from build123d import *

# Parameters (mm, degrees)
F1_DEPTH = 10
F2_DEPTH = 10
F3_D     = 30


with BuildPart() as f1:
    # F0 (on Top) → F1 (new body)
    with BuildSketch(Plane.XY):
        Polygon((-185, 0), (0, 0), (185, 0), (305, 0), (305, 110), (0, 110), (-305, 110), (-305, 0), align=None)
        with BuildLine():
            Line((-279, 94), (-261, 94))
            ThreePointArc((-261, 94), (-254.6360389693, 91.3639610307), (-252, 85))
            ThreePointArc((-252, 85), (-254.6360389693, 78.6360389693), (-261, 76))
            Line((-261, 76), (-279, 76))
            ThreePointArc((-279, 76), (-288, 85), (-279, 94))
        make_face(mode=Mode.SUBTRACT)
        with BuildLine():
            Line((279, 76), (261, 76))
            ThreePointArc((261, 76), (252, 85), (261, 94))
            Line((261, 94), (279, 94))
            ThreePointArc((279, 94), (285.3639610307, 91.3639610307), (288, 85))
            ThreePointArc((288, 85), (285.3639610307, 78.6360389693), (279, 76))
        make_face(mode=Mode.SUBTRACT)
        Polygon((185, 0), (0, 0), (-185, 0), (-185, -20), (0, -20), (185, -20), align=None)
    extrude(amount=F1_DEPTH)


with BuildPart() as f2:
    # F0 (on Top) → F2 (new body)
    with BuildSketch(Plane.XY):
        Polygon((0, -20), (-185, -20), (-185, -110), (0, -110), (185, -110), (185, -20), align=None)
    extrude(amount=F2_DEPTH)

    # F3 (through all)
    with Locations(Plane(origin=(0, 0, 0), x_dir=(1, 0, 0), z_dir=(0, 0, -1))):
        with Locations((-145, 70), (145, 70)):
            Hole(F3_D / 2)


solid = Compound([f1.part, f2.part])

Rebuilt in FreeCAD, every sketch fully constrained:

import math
import FreeCAD as App
import Part
import Sketcher
Q = App.Units.Quantity


def add_polygon(sketch, points):
    """Adds a closed chain of lines whose ends are joined by coincident constraints."""
    first, n = sketch.GeometryCount, len(points)
    for a, b in zip(points, points[1:] + points[:1]):
        sketch.addGeometry(Part.LineSegment(App.Vector(*a, 0), App.Vector(*b, 0)), False)
    for i in range(n):
        sketch.addConstraint(Sketcher.Constraint("Coincident", first + i, 2, first + (i + 1) % n, 1))

doc = App.newDocument("Part")
params = doc.addObject("Spreadsheet::Sheet", "Params")
for row, (alias, value) in enumerate([
    ("sketch1_radius", "9 mm"),
    ("sketch1_width", "610 mm"),
    ("sketch1_width2", "120 mm"),
    ("sketch1_width3", "18 mm"),
    ("sketch1_height", "110 mm"),
    ("pad1_length", "10 mm"),
    ("sketch2_width", "370 mm"),
    ("sketch2_height", "90 mm"),
    ("pad2_length", "10 mm"),
    ("sketch3_diameter", "30 mm"),
    ("hole_diameter", "30 mm"),
], start=1):
    params.set(f"A{row}", alias)
    params.set(f"B{row}", "=" + value)
    params.setAlias(f"B{row}", alias)

body = doc.addObject("PartDesign::Body", "Body")

# Sketch on XY plane
sketch1 = doc.addObject("Sketcher::SketchObject", "Sketch")
body.addObject(sketch1)
sketch1.AttachmentSupport = (doc.XY_Plane, [""])
sketch1.MapMode = "FlatFace"
add_polygon(sketch1, [(305, 0), (305, 110), (-305, 110), (-305, 0), (-185, 0), (-185, -20), (185, -20), (185, 0)])  # lines 0-7
sketch1.addGeometry(Part.ArcOfCircle(Part.Circle(App.Vector(-279, 85, 0), App.Vector(0, 0, 1), 9), math.radians(90), math.radians(270)), False)  # 8
sketch1.addGeometry(Part.LineSegment(App.Vector(-279, 94, 0), App.Vector(-261, 94, 0)), False)  # 9
sketch1.addGeometry(Part.ArcOfCircle(Part.Circle(App.Vector(-261, 85, 0), App.Vector(0, 0, 1), 9), math.radians(0), math.radians(90)), False)  # 10
sketch1.addGeometry(Part.ArcOfCircle(Part.Circle(App.Vector(-261, 85, 0), App.Vector(0, 0, 1), 9), math.radians(-90), math.radians(0)), False)  # 11
sketch1.addGeometry(Part.LineSegment(App.Vector(-261, 76, 0), App.Vector(-279, 76, 0)), False)  # 12
sketch1.addGeometry(Part.ArcOfCircle(Part.Circle(App.Vector(279, 85, 0), App.Vector(0, 0, 1), 9), math.radians(-90), math.radians(0)), False)  # 13
sketch1.addGeometry(Part.LineSegment(App.Vector(279, 76, 0), App.Vector(261, 76, 0)), False)  # 14
sketch1.addGeometry(Part.ArcOfCircle(Part.Circle(App.Vector(261, 85, 0), App.Vector(0, 0, 1), 9), math.radians(90), math.radians(270)), False)  # 15
sketch1.addGeometry(Part.LineSegment(App.Vector(261, 94, 0), App.Vector(279, 94, 0)), False)  # 16
sketch1.addGeometry(Part.ArcOfCircle(Part.Circle(App.Vector(279, 85, 0), App.Vector(0, 0, 1), 9), math.radians(0), math.radians(90)), False)  # 17
sketch1.addConstraint([
    Sketcher.Constraint("Tangent", 8, 1, 9, 1),
    Sketcher.Constraint("Tangent", 9, 2, 10, 2),
    Sketcher.Constraint("Tangent", 10, 1, 11, 2),
    Sketcher.Constraint("Tangent", 11, 1, 12, 1),
    Sketcher.Constraint("Tangent", 12, 2, 8, 2),
    Sketcher.Constraint("Tangent", 13, 1, 14, 1),
    Sketcher.Constraint("Tangent", 14, 2, 15, 2),
    Sketcher.Constraint("Tangent", 15, 1, 16, 1),
    Sketcher.Constraint("Tangent", 16, 2, 17, 2),
    Sketcher.Constraint("Tangent", 17, 1, 13, 2),
    Sketcher.Constraint("Vertical", 0),
    Sketcher.Constraint("Horizontal", 1),
    Sketcher.Constraint("Vertical", 2),
    Sketcher.Constraint("Horizontal", 3),
    Sketcher.Constraint("Vertical", 4),
    Sketcher.Constraint("Horizontal", 5),
    Sketcher.Constraint("Vertical", 6),
    Sketcher.Constraint("Horizontal", 7),
    Sketcher.Constraint("Horizontal", 9),
    Sketcher.Constraint("Horizontal", 12),
    Sketcher.Constraint("Horizontal", 14),
    Sketcher.Constraint("Horizontal", 16),
    Sketcher.Constraint("Equal", 8, 10),
    Sketcher.Constraint("Equal", 11, 13),
    Sketcher.Constraint("Equal", 13, 15),
    Sketcher.Constraint("Symmetric", 3, 2, 6, 2, -1, 1),
    Sketcher.Constraint("Symmetric", 8, 3, 13, 3, -2),
    Sketcher.Constraint("Symmetric", 2, 2, 7, 2, -2),
    Sketcher.Constraint("Horizontal", 17, 3, 10, 1),
    Sketcher.Constraint("Horizontal", 10, 1, 17, 1),
    Sketcher.Constraint("Equal", 12, 14),
    Sketcher.Constraint("Radius", 8, Q("9 mm")),
    Sketcher.Constraint("DistanceX", 1, 2, 1, 1, Q("610 mm")),
    Sketcher.Constraint("DistanceX", 3, 1, 3, 2, Q("120 mm")),
    Sketcher.Constraint("DistanceX", 9, 1, 9, 2, Q("18 mm")),
    Sketcher.Constraint("DistanceY", 0, 1, 0, 2, Q("110 mm")),
    Sketcher.Constraint("DistanceY", 4, 2, 4, 1, Q("20 mm")),
    Sketcher.Constraint("DistanceX", 8, 3, -1, 1, Q("279 mm")),
    Sketcher.Constraint("DistanceY", -1, 1, 8, 3, Q("85 mm")),
])
sketch1.setExpression("Constraints[39]", "Params.sketch1_radius")
sketch1.setExpression("Constraints[40]", "Params.sketch1_width")
sketch1.setExpression("Constraints[41]", "Params.sketch1_width2")
sketch1.setExpression("Constraints[42]", "Params.sketch1_width3")
sketch1.setExpression("Constraints[43]", "Params.sketch1_height")
pad1 = doc.addObject("PartDesign::Pad", "Pad")
body.addObject(pad1)
pad1.Profile = sketch1
pad1.setExpression("Length", "Params.pad1_length")
body2 = doc.addObject("PartDesign::Body", "Body001")

# Sketch on XY plane
sketch2 = doc.addObject("Sketcher::SketchObject", "Sketch001")
body2.addObject(sketch2)
sketch2.AttachmentSupport = (doc.getObject("XY_Plane001"), [""])
sketch2.MapMode = "FlatFace"
add_polygon(sketch2, [(-185, -20), (-185, -110), (185, -110), (185, -20)])  # lines 0-3
sketch2.addConstraint([
    Sketcher.Constraint("Vertical", 0),
    Sketcher.Constraint("Horizontal", 1),
    Sketcher.Constraint("Vertical", 2),
    Sketcher.Constraint("Horizontal", 3),
    Sketcher.Constraint("DistanceX", 1, 1, 1, 2, Q("370 mm")),
    Sketcher.Constraint("DistanceY", 0, 2, 0, 1, Q("90 mm")),
    Sketcher.Constraint("DistanceX", 0, 2, -1, 1, Q("185 mm")),
    Sketcher.Constraint("DistanceY", 0, 2, -1, 1, Q("110 mm")),
])
sketch2.setExpression("Constraints[8]", "Params.sketch2_width")
sketch2.setExpression("Constraints[9]", "Params.sketch2_height")
pad2 = doc.addObject("PartDesign::Pad", "Pad001")
body2.addObject(pad2)
pad2.Profile = sketch2
pad2.setExpression("Length", "Params.pad2_length")

# Sketch on XY plane
sketch3 = doc.addObject("Sketcher::SketchObject", "Sketch002")
body2.addObject(sketch3)
sketch3.AttachmentSupport = (doc.getObject("XY_Plane001"), [""])
sketch3.MapMode = "FlatFace"
sketch3.addGeometry([
    Part.Circle(App.Vector(-145, -70, 0), App.Vector(0, 0, 1), 15),
    Part.Circle(App.Vector(145, -70, 0), App.Vector(0, 0, 1), 15),
], False)
sketch3.addConstraint([
    Sketcher.Constraint("Equal", 0, 1),
    Sketcher.Constraint("Symmetric", 0, 3, 1, 3, -2),
    Sketcher.Constraint("Diameter", 0, Q("30 mm")),
    Sketcher.Constraint("DistanceX", 0, 3, -1, 1, Q("145 mm")),
    Sketcher.Constraint("DistanceY", 0, 3, -1, 1, Q("70 mm")),
])
sketch3.setExpression("Constraints[2]", "Params.sketch3_diameter")
doc.recompute()
hole = doc.addObject("PartDesign::Hole", "Hole")
body2.addObject(hole)
hole.Profile = sketch3
hole.ThreadType = "None"
hole.setExpression("Diameter", "Params.hole_diameter")
hole.DepthType = "ThroughAll"
hole.Reversed = True

doc.recompute()
